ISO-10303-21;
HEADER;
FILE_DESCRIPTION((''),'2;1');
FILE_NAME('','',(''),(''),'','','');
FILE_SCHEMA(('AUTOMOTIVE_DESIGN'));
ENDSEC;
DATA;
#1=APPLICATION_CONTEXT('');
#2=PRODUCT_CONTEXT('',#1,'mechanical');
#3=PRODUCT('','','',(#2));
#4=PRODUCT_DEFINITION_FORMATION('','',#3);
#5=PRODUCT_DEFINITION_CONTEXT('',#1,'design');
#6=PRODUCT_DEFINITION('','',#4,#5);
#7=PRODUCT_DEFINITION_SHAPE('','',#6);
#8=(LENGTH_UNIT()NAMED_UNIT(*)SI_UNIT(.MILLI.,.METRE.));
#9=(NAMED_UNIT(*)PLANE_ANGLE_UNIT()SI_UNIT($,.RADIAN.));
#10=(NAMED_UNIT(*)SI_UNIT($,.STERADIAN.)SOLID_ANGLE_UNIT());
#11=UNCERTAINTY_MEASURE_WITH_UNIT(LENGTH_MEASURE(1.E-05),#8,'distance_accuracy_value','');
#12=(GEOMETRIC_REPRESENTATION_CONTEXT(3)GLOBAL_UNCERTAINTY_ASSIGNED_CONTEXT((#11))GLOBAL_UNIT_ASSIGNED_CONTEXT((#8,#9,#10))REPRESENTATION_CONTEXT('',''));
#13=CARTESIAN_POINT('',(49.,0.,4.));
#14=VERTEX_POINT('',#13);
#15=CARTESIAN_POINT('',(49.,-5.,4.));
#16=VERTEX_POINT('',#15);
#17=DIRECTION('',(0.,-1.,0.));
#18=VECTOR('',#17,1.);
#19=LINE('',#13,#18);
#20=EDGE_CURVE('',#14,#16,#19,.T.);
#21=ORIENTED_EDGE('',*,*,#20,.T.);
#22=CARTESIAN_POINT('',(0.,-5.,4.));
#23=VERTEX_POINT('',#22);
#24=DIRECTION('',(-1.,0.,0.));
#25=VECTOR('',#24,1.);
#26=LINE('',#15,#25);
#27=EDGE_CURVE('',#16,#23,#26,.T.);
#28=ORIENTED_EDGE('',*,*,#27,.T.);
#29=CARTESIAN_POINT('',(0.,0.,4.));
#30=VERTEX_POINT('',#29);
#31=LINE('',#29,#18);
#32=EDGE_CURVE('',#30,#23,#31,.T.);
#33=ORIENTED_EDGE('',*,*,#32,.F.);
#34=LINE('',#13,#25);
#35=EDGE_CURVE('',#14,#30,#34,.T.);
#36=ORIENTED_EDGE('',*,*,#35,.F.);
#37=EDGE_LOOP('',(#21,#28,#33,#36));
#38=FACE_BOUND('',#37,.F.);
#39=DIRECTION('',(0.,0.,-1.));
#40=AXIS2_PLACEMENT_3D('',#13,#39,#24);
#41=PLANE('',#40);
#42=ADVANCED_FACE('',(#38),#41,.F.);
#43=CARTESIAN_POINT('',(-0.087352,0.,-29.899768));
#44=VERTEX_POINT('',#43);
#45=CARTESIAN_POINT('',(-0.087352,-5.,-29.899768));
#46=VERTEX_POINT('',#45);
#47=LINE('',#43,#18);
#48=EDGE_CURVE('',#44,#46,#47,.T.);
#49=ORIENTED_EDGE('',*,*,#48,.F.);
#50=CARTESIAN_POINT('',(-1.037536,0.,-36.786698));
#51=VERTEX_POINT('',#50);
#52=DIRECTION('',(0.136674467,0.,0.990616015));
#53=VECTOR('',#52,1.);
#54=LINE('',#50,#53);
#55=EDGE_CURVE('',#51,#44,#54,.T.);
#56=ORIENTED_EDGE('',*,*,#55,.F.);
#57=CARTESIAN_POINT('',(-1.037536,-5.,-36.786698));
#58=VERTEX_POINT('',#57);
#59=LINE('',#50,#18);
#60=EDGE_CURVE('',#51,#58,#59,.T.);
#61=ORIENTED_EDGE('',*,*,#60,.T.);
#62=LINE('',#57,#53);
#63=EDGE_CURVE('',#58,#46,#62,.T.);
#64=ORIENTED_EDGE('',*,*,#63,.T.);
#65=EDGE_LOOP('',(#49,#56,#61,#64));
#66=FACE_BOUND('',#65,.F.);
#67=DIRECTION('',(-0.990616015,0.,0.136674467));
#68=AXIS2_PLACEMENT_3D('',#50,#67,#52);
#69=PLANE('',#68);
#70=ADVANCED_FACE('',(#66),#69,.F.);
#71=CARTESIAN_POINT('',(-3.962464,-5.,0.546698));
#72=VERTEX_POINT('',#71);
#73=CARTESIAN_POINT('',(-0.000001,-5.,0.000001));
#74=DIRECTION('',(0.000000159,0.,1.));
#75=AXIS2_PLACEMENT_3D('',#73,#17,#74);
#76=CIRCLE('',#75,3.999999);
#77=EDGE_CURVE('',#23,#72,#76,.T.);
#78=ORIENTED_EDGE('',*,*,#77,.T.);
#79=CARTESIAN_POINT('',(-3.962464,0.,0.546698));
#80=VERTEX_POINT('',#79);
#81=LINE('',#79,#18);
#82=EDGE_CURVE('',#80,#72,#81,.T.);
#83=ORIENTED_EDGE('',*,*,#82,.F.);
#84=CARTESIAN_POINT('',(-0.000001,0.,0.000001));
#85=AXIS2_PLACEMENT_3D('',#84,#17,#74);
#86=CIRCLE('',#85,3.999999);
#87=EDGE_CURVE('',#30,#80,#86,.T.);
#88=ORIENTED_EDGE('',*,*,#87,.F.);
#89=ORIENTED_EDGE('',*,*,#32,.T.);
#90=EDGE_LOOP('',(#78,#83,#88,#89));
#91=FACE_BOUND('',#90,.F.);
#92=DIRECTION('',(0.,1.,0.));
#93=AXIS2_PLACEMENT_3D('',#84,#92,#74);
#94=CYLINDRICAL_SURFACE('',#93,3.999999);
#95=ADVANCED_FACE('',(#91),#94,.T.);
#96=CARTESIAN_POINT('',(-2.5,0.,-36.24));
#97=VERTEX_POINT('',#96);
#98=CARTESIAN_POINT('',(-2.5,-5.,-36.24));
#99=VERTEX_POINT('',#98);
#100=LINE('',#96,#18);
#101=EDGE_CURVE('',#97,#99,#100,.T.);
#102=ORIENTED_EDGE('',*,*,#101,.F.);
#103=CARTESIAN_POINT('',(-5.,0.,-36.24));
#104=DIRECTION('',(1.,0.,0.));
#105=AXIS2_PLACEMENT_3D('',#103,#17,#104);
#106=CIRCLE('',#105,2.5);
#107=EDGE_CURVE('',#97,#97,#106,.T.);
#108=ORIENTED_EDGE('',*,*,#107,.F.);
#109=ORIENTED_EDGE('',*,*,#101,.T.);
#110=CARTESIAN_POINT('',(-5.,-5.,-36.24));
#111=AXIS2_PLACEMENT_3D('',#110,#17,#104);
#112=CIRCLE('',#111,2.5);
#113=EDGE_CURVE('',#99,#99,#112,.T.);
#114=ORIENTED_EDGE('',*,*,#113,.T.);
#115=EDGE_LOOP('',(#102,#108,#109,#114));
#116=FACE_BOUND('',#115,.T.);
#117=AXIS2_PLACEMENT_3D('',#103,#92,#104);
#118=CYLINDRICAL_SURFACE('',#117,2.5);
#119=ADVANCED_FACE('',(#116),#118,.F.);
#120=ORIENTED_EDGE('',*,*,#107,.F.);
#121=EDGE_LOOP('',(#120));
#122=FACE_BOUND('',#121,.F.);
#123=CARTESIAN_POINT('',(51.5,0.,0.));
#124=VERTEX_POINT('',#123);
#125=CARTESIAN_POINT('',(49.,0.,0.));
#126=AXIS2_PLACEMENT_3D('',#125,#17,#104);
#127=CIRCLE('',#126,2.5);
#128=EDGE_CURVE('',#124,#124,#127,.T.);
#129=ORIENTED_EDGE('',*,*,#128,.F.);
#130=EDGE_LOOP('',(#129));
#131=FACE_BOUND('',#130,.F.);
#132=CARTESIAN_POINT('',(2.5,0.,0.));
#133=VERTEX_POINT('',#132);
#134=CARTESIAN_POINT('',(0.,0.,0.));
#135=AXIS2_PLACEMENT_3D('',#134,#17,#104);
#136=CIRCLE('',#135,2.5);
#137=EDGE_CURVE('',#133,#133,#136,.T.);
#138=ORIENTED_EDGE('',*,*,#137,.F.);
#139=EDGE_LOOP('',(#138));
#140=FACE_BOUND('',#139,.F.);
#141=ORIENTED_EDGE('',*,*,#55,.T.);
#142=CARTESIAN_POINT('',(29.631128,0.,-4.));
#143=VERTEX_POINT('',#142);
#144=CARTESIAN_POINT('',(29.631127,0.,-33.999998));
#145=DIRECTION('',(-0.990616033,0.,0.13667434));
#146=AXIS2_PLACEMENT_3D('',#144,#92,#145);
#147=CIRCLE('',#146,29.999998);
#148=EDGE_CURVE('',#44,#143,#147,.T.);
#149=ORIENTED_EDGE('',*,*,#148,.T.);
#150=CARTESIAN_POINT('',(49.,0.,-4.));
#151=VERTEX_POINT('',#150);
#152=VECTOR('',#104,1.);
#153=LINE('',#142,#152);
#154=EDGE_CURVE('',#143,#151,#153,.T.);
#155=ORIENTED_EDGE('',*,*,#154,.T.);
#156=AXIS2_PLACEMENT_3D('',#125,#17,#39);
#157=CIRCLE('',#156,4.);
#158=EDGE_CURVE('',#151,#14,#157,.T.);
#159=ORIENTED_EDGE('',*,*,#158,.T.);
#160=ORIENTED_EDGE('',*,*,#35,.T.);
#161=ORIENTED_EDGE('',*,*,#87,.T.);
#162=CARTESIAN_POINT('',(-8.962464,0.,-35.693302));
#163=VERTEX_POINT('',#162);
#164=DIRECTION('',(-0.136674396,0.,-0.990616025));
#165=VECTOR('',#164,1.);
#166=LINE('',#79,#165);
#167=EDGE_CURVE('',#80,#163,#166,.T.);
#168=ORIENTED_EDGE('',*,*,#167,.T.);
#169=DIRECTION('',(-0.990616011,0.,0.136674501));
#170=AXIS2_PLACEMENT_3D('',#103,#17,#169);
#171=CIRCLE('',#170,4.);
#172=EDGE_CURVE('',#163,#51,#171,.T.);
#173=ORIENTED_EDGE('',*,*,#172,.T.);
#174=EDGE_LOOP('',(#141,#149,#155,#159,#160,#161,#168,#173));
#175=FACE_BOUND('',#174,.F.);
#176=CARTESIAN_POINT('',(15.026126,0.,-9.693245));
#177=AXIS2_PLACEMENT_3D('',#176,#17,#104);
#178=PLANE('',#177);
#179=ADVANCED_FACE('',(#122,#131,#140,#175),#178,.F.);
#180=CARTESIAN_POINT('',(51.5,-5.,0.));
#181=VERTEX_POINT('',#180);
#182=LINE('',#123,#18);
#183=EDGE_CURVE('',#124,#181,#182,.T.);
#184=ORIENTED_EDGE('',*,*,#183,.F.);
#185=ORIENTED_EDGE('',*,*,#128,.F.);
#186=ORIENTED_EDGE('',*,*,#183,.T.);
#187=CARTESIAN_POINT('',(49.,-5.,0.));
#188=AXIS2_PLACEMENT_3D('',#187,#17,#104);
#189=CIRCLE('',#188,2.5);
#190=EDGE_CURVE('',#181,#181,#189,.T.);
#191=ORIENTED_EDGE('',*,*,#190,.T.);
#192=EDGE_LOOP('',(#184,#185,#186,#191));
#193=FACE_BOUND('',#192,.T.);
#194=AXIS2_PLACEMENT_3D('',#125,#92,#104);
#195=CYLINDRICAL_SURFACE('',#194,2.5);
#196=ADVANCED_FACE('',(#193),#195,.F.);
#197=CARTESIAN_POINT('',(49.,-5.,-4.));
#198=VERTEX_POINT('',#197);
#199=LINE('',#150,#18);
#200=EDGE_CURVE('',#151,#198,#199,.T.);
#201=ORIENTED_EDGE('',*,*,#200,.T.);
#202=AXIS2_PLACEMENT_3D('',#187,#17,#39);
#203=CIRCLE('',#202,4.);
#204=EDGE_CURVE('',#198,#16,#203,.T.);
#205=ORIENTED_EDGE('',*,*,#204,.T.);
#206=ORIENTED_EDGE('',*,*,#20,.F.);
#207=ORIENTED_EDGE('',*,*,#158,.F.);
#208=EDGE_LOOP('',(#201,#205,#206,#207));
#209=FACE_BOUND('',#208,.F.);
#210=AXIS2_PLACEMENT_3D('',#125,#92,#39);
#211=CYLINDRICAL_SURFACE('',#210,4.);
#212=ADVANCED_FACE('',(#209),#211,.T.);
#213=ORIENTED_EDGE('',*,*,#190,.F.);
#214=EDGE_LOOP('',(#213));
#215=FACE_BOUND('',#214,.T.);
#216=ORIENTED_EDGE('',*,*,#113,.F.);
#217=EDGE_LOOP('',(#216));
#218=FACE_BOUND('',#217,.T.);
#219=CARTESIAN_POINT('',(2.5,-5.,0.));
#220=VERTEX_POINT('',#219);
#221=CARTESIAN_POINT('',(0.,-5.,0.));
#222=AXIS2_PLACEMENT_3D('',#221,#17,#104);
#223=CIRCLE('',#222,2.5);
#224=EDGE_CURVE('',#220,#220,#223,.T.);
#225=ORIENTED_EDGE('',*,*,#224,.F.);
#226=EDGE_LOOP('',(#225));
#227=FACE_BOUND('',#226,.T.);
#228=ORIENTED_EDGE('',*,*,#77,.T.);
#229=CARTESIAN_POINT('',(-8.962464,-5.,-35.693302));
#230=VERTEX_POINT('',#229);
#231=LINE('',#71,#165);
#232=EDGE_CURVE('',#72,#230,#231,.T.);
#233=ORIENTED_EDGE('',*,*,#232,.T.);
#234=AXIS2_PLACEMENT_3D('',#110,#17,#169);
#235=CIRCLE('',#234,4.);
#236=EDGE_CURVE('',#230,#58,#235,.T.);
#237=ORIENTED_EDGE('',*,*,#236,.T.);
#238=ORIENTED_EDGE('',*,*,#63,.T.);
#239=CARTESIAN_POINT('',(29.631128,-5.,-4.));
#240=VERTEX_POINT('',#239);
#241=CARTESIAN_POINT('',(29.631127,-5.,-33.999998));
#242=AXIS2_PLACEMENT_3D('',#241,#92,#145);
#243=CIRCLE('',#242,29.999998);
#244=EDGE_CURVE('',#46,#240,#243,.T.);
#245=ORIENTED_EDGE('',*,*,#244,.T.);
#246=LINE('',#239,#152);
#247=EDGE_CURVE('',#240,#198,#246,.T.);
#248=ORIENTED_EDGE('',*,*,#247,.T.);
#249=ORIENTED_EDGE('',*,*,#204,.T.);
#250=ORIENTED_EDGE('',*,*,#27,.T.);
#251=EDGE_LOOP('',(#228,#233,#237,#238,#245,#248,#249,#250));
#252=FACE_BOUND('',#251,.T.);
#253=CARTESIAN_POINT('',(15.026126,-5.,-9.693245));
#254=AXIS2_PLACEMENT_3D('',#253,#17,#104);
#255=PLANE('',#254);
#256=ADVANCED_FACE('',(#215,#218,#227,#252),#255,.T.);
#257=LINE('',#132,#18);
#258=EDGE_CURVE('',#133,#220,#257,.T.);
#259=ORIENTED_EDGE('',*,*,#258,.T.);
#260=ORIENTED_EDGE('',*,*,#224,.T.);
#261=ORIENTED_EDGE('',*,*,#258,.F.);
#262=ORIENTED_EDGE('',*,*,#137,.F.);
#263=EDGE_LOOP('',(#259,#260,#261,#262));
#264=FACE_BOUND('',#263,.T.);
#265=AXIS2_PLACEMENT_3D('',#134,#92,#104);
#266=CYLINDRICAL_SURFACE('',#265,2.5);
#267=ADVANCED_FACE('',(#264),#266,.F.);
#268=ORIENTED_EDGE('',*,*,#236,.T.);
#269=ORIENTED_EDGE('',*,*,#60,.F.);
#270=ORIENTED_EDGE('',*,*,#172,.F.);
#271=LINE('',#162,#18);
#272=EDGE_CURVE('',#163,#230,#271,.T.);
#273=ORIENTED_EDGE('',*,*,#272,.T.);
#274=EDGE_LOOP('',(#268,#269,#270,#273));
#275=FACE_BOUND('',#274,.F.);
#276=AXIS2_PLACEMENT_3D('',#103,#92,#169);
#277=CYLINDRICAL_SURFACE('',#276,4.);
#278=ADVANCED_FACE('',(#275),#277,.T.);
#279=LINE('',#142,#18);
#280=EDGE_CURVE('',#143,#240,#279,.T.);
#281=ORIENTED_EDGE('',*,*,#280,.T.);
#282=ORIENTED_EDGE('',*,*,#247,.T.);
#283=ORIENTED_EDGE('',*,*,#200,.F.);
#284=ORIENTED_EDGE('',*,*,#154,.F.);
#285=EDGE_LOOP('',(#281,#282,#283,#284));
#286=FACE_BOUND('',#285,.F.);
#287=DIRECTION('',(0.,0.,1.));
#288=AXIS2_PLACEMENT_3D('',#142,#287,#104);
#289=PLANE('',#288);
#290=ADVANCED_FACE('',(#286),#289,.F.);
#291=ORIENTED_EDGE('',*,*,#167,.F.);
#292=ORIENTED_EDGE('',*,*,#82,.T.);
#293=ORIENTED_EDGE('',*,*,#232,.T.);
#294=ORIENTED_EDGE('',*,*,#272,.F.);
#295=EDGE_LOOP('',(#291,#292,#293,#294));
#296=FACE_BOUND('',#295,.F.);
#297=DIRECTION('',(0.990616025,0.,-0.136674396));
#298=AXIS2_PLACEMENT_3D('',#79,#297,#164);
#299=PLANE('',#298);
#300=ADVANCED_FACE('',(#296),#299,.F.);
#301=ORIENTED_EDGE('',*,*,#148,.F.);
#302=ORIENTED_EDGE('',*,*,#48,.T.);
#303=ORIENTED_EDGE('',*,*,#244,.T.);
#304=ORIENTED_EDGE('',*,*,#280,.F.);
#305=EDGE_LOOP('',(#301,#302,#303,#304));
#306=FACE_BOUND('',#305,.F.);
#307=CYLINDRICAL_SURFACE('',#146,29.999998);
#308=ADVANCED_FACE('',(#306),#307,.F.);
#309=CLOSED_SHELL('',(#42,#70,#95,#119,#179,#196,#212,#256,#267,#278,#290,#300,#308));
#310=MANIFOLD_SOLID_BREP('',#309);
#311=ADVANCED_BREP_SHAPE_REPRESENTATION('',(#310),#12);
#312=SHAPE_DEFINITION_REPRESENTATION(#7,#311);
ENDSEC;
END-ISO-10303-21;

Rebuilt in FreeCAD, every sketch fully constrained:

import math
import FreeCAD as App
import Part
import Sketcher
from FreeCAD import Vector
Q = App.Units.Quantity

doc = App.newDocument("Part")
params = doc.addObject("Spreadsheet::Sheet", "Params")
for row, (alias, value) in enumerate([
    ("sketch1_diameter", "5 mm"),
    ("sketch1_radius", "3.999999 mm"),
    ("sketch1_width", "49 mm"),
    ("pad1_length", "5 mm"),
], start=1):
    params.set(f"A{row}", alias)
    params.set(f"B{row}", "=" + value)
    params.setAlias(f"B{row}", alias)

body = doc.addObject("PartDesign::Body", "Body")

# Sketch on XZ plane
sketch1 = doc.addObject("Sketcher::SketchObject", "Sketch")
body.addObject(sketch1)
sketch1.AttachmentSupport = (doc.XZ_Plane, [""])
sketch1.MapMode = "FlatFace"
sketch1.addGeometry(Part.LineSegment(Vector(49, 4, 0), Vector(0, 4, 0)), False)
sketch1.addGeometry(Part.ArcOfCircle(Part.Circle(Vector(-0.000001, 0.000001, 0), Vector(0, 0, 1), 3.999999), math.radians(89.999991), math.radians(172.14455)), False)
sketch1.addGeometry(Part.LineSegment(Vector(-3.962464, 0.546698, 0), Vector(-8.962464, -35.693302, 0)), False)
sketch1.addGeometry(Part.ArcOfCircle(Part.Circle(Vector(-5, -36.24, 0), Vector(0, 0, 1), 4), math.radians(172.144541), math.radians(352.144541)), False)
sketch1.addGeometry(Part.LineSegment(Vector(-1.037536, -36.786698, 0), Vector(-0.087352, -29.899768, 0)), False)
sketch1.addGeometry(Part.ArcOfCircle(Part.Circle(Vector(29.631127, -33.999998, 0), Vector(0, 0, 1), 29.999998), math.radians(89.999998), math.radians(172.14455)), False)
sketch1.addGeometry(Part.LineSegment(Vector(29.631128, -4, 0), Vector(49, -4, 0)), False)
sketch1.addGeometry(Part.ArcOfCircle(Part.Circle(Vector(49, 0, 0), Vector(0, 0, 1), 4), math.radians(-90), math.radians(90)), False)
sketch1.addGeometry(Part.Circle(Vector(-5, -36.24, 0), Vector(0, 0, 1), 2.5), False)
sketch1.addGeometry(Part.Circle(Vector(0, 0, 0), Vector(0, 0, 1), 2.5), False)
sketch1.addGeometry(Part.Circle(Vector(49, 0, 0), Vector(0, 0, 1), 2.5), False)
sketch1.addConstraint(Sketcher.Constraint("Tangent", 0, 2, 1, 1))
sketch1.addConstraint(Sketcher.Constraint("Tangent", 1, 2, 2, 1))
sketch1.addConstraint(Sketcher.Constraint("Tangent", 2, 2, 3, 1))
sketch1.addConstraint(Sketcher.Constraint("Tangent", 3, 2, 4, 1))
sketch1.addConstraint(Sketcher.Constraint("Tangent", 4, 2, 5, 2))
sketch1.addConstraint(Sketcher.Constraint("Tangent", 5, 1, 6, 1))
sketch1.addConstraint(Sketcher.Constraint("Tangent", 6, 2, 7, 1))
sketch1.addConstraint(Sketcher.Constraint("Tangent", 7, 2, 0, 1))
sketch1.addConstraint(Sketcher.Constraint("Horizontal", 0))
sketch1.addConstraint(Sketcher.Constraint("Horizontal", 6))
sketch1.addConstraint(Sketcher.Constraint("Coincident", 1, 3, -1, 1))
sketch1.addConstraint(Sketcher.Constraint("Coincident", 9, 3, -1, 1))
sketch1.addConstraint(Sketcher.Constraint("Coincident", 8, 3, 3, 3))
sketch1.addConstraint(Sketcher.Constraint("Coincident", 10, 3, 7, 3))
sketch1.addConstraint(Sketcher.Constraint("Equal", 1, 3))
sketch1.addConstraint(Sketcher.Constraint("Equal", 3, 7))
sketch1.addConstraint(Sketcher.Constraint("Equal", 8, 9))
sketch1.addConstraint(Sketcher.Constraint("Equal", 9, 10))
sketch1.addConstraint(Sketcher.Constraint("Parallel", 2, 4))
sketch1.addConstraint(Sketcher.Constraint("Diameter", 8, Q("5 mm")))
sketch1.addConstraint(Sketcher.Constraint("Radius", 1, Q("3.999999 mm")))
sketch1.addConstraint(Sketcher.Constraint("DistanceX", 0, 2, 0, 1, Q("49 mm")))
sketch1.addConstraint(Sketcher.Constraint("DistanceX", 3, 3, -1, 1, Q("5 mm")))
sketch1.addConstraint(Sketcher.Constraint("DistanceY", 5, 3, 1, 3, Q("33.999999 mm")))
sketch1.addConstraint(Sketcher.Constraint("DistanceY", 3, 3, -1, 1, Q("36.24 mm")))
sketch1.setExpression("Constraints[19]", "Params.sketch1_diameter")
sketch1.setExpression("Constraints[20]", "Params.sketch1_radius")
sketch1.setExpression("Constraints[21]", "Params.sketch1_width")
pad1 = doc.addObject("PartDesign::Pad", "Pad")
body.addObject(pad1)
pad1.Profile = sketch1
pad1.setExpression("Length", "Params.pad1_length")

doc.recompute()
